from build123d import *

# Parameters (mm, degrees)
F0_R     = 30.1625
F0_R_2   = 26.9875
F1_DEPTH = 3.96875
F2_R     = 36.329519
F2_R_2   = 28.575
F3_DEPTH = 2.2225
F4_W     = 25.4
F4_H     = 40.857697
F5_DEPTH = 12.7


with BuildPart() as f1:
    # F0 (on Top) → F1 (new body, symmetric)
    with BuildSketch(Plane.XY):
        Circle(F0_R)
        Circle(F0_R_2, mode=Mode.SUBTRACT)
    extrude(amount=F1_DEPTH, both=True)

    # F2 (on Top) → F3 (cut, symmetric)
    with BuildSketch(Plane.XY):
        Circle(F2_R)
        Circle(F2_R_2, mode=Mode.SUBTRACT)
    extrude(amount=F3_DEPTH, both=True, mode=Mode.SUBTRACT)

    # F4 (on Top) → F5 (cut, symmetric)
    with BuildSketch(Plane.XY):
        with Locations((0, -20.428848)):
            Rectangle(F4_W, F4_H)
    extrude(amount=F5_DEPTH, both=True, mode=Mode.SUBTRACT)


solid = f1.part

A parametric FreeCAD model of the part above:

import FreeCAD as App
import Part
import Sketcher

V = App.Vector
Q = App.Units.Quantity


def add_polygon(sketch, points):
    """Adds a closed chain of lines whose ends are joined by coincident constraints."""
    first, n = sketch.GeometryCount, len(points)
    for a, b in zip(points, points[1:] + points[:1]):
        sketch.addGeometry(Part.LineSegment(App.Vector(*a, 0), App.Vector(*b, 0)), False)
    for i in range(n):
        sketch.addConstraint(Sketcher.Constraint("Coincident", first + i, 2, first + (i + 1) % n, 1))

doc = App.newDocument("Part")
body = doc.addObject("PartDesign::Body", "Body")

# Sketch on XY plane
sketch1 = doc.addObject("Sketcher::SketchObject", "Sketch")
body.addObject(sketch1)
sketch1.AttachmentSupport = (doc.XY_Plane, [""])
sketch1.MapMode = "FlatFace"
sketch1.addGeometry([
    Part.Circle(V(0, 0, 0), V(0, 0, 1), 30),
    Part.Circle(V(0, 0, 0), V(0, 0, 1), 27),
], False)
sketch1.addConstraint([
    Sketcher.Constraint("Coincident", 0, 3, -1, 1),
    Sketcher.Constraint("Coincident", 1, 3, -1, 1),
    Sketcher.Constraint("Diameter", 0, Q("2.375 in")),
    Sketcher.Constraint("Diameter", 1, Q("2.125 in")),
])
pad1 = doc.addObject("PartDesign::Pad", "Pad")
body.addObject(pad1)
pad1.Profile = sketch1
pad1.Length = Q("0.3125 in")
pad1.Midplane = True

# Sketch on XY plane
sketch2 = doc.addObject("Sketcher::SketchObject", "Sketch001")
body.addObject(sketch2)
sketch2.AttachmentSupport = (doc.XY_Plane, [""])
sketch2.MapMode = "FlatFace"
sketch2.addGeometry([
    Part.Circle(V(0, 0, 0), V(0, 0, 1), 36),
    Part.Circle(V(0, 0, 0), V(0, 0, 1), 29),
], False)
sketch2.addConstraint([
    Sketcher.Constraint("Coincident", 0, 3, -1, 1),
    Sketcher.Constraint("Coincident", 1, 3, -1, 1),
    Sketcher.Constraint("Diameter", 1, Q("2.25 in")),
    Sketcher.Constraint("Diameter", 0, 72.659038),
])
pocket1 = doc.addObject("PartDesign::Pocket", "Pocket")
body.addObject(pocket1)
pocket1.Profile = sketch2
pocket1.Length = Q("0.175 in")
pocket1.Midplane = True

# Sketch on XY plane
sketch3 = doc.addObject("Sketcher::SketchObject", "Sketch002")
body.addObject(sketch3)
sketch3.AttachmentSupport = (doc.XY_Plane, [""])
sketch3.MapMode = "FlatFace"
add_polygon(sketch3, [(-13, 0), (-13, -41), (13, -41), (13, 0)])  # lines 0-3
sketch3.addConstraint([
    Sketcher.Constraint("Vertical", 0),
    Sketcher.Constraint("Horizontal", 1),
    Sketcher.Constraint("Vertical", 2),
    Sketcher.Constraint("Horizontal", 3),
    Sketcher.Constraint("Symmetric", 2, 2, 3, 2, -1, 1),
    Sketcher.Constraint("DistanceX", 1, 1, 1, 2, Q("1 in")),
    Sketcher.Constraint("DistanceY", 0, 2, 0, 1, 40.857697),
])
pocket2 = doc.addObject("PartDesign::Pocket", "Pocket001")
body.addObject(pocket2)
pocket2.Profile = sketch3
pocket2.Length = Q("1 in")
pocket2.Midplane = True

doc.recompute()
